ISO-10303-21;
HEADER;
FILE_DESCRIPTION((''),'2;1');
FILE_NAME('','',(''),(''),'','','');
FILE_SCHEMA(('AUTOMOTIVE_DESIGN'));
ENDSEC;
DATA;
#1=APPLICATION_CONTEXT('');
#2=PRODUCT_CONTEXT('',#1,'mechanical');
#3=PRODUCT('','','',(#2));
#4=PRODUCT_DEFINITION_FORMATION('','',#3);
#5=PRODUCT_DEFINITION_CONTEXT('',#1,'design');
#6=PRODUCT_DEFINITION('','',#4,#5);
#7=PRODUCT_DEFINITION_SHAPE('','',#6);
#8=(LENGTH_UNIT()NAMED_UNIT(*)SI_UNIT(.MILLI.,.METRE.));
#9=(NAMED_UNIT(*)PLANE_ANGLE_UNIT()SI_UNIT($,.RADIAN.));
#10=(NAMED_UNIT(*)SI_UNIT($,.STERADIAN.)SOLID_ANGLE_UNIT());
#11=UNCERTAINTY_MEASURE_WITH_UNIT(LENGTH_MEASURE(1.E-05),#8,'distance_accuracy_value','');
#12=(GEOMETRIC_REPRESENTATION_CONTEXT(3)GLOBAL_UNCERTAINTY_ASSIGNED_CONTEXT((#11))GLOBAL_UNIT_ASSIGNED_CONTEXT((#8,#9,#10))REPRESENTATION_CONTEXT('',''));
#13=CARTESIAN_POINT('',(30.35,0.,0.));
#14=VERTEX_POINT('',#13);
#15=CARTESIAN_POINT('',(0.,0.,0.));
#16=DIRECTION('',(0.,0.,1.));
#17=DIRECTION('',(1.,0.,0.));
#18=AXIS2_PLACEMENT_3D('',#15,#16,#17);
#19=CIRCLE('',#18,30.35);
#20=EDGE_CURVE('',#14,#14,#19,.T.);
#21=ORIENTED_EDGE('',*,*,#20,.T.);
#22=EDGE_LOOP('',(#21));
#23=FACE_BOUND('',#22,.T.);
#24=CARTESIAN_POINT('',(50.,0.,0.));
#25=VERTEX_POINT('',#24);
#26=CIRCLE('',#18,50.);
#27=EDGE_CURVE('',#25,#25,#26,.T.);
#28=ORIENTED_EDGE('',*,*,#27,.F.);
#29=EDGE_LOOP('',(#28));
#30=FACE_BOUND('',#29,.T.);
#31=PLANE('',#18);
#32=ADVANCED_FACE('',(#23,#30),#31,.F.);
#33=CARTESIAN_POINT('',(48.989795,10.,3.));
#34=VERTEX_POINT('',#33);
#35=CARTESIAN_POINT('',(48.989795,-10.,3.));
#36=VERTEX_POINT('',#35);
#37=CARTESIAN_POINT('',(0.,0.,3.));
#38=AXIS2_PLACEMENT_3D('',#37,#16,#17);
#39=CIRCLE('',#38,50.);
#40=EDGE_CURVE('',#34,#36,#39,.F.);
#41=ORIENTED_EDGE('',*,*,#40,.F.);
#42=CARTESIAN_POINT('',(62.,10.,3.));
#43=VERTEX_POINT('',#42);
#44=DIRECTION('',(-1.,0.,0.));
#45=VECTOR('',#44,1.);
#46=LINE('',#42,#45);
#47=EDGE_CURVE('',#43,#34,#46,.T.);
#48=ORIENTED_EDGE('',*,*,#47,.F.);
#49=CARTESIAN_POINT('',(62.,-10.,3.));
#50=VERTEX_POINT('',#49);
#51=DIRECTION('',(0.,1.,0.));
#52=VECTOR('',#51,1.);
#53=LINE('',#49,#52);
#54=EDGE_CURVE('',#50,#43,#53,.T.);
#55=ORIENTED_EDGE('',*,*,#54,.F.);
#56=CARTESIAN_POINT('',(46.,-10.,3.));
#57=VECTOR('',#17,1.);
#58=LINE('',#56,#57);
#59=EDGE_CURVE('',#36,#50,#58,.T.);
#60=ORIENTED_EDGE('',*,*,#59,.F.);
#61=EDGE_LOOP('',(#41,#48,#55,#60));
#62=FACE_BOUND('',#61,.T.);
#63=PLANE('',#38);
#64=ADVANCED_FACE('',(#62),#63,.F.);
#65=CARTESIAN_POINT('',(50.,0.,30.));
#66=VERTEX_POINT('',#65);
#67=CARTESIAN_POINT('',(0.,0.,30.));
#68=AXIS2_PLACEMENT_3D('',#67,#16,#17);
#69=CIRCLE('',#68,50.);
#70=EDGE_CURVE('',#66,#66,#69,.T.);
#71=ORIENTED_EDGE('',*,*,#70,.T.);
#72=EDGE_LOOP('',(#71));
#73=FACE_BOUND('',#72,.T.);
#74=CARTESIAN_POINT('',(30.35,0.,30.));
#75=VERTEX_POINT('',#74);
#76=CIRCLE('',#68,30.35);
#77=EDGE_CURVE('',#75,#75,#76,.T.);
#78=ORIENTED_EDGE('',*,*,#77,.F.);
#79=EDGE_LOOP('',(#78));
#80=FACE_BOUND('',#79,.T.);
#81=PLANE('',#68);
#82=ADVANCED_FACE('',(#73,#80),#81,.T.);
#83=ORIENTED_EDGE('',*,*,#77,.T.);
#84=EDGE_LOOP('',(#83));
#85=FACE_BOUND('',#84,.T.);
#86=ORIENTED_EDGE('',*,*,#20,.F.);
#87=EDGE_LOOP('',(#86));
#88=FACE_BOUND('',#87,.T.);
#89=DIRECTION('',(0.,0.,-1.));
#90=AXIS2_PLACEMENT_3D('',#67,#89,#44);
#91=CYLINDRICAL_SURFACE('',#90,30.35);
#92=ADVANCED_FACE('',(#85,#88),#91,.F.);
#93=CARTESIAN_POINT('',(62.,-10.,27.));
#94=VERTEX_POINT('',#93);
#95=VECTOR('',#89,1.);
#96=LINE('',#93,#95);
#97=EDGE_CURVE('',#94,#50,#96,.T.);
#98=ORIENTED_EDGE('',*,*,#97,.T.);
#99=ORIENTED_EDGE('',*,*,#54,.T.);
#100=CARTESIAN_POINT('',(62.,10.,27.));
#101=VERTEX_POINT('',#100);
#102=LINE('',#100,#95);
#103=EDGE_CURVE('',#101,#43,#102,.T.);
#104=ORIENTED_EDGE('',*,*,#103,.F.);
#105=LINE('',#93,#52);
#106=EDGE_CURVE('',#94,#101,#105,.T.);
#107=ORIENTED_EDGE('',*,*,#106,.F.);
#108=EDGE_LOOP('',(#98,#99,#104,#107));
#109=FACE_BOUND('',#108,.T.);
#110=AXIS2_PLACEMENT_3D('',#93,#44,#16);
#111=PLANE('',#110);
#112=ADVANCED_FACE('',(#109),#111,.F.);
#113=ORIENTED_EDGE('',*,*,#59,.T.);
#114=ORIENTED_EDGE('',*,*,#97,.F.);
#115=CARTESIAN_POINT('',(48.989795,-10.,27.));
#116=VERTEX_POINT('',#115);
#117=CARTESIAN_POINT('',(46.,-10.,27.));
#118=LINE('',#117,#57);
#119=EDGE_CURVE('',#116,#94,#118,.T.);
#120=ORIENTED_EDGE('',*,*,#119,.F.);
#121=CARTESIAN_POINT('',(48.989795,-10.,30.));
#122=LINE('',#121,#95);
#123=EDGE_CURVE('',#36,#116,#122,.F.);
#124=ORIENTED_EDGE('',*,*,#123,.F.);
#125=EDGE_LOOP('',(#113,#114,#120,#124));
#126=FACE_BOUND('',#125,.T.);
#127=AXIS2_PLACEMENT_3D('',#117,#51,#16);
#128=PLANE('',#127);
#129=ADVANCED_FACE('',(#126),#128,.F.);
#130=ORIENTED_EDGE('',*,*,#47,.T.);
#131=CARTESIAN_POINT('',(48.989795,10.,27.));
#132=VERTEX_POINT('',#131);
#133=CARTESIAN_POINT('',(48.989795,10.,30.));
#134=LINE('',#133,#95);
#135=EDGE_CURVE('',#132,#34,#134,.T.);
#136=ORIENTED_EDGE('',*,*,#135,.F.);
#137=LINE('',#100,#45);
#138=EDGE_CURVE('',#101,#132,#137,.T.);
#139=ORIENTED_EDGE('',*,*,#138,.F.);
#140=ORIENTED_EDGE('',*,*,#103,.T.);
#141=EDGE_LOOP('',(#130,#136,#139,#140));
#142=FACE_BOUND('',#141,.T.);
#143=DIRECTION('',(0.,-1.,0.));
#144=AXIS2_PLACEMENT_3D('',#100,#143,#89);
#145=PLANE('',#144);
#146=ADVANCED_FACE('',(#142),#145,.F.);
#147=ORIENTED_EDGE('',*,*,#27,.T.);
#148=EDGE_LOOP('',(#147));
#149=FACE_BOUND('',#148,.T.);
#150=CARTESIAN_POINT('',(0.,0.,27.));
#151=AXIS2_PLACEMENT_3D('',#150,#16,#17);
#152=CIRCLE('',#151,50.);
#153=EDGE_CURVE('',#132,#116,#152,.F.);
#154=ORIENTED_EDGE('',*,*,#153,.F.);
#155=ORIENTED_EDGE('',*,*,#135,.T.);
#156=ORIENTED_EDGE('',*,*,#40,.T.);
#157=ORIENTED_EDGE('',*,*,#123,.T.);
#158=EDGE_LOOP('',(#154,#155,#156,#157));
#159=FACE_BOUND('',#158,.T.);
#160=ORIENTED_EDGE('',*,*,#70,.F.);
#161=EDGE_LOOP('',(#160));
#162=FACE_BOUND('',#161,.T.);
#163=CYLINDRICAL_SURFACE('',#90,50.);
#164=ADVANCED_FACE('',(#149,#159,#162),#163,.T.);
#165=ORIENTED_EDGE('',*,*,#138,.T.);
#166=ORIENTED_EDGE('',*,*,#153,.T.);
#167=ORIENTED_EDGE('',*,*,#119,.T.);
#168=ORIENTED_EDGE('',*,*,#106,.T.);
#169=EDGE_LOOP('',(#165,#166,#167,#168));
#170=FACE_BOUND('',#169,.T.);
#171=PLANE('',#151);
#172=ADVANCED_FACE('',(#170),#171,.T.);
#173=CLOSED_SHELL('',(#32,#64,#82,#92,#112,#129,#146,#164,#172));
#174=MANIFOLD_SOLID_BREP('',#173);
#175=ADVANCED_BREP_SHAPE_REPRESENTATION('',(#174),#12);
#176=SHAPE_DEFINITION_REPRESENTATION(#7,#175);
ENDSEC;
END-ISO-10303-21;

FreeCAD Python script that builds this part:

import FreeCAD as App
import Part
import Sketcher

V = App.Vector
Q = App.Units.Quantity

doc = App.newDocument("Part")
body = doc.addObject("PartDesign::Body", "Body")

# Sketch on XY plane
sketch1 = doc.addObject("Sketcher::SketchObject", "Sketch")
body.addObject(sketch1)
sketch1.AttachmentSupport = (doc.XY_Plane, [""])
sketch1.MapMode = "FlatFace"
sketch1.addGeometry(Part.Circle(V(0, 0, 0), V(0, 0, 1), 50), False)
sketch1.addGeometry(Part.Circle(V(0, 0, 0), V(0, 0, 1), 30.35), False)
sketch1.addConstraint(Sketcher.Constraint("Coincident", 0, 3, -1, 1))
sketch1.addConstraint(Sketcher.Constraint("Coincident", 1, 3, -1, 1))
sketch1.addConstraint(Sketcher.Constraint("Diameter", 0, Q("100 mm")))
sketch1.addConstraint(Sketcher.Constraint("Diameter", 1, Q("60.7 mm")))
pad1 = doc.addObject("PartDesign::Pad", "Pad")
body.addObject(pad1)
pad1.Profile = sketch1
pad1.Length = 30
body2 = doc.addObject("PartDesign::Body", "Body001")

# Sketch on XY plane
sketch2 = doc.addObject("Sketcher::SketchObject", "Sketch001")
body2.addObject(sketch2)
sketch2.AttachmentSupport = (doc.getObject("XY_Plane001"), [""])
sketch2.MapMode = "FlatFace"
sketch2.AttachmentOffset = App.Placement(V(0, 0, 3), App.Rotation())
sketch2.addGeometry(Part.LineSegment(V(46, 10, 0), V(46, -10, 0)), False)
sketch2.addGeometry(Part.LineSegment(V(46, -10, 0), V(62, -10, 0)), False)
sketch2.addGeometry(Part.LineSegment(V(62, -10, 0), V(62, 10, 0)), False)
sketch2.addGeometry(Part.LineSegment(V(62, 10, 0), V(46, 10, 0)), False)
sketch2.addConstraint(Sketcher.Constraint("Coincident", 0, 2, 1, 1))
sketch2.addConstraint(Sketcher.Constraint("Coincident", 1, 2, 2, 1))
sketch2.addConstraint(Sketcher.Constraint("Coincident", 2, 2, 3, 1))
sketch2.addConstraint(Sketcher.Constraint("Coincident", 3, 2, 0, 1))
sketch2.addConstraint(Sketcher.Constraint("Vertical", 0))
sketch2.addConstraint(Sketcher.Constraint("Horizontal", 1))
sketch2.addConstraint(Sketcher.Constraint("Vertical", 2))
sketch2.addConstraint(Sketcher.Constraint("Horizontal", 3))
sketch2.addConstraint(Sketcher.Constraint("DistanceX", 1, 1, 1, 2, Q("16 mm")))
sketch2.addConstraint(Sketcher.Constraint("DistanceY", 0, 2, 0, 1, Q("20 mm")))
sketch2.addConstraint(Sketcher.Constraint("DistanceX", -1, 1, 0, 2, Q("46 mm")))
sketch2.addConstraint(Sketcher.Constraint("DistanceY", 0, 2, -1, 1, Q("10 mm")))
pad2 = doc.addObject("PartDesign::Pad", "Pad001")
body2.addObject(pad2)
pad2.Profile = sketch2
pad2.Length = 24
doc.recompute()

boolean = doc.addObject("PartDesign::Boolean", "Boolean")
body2.addObject(boolean)
boolean.Type = "Fuse"
boolean.addObjects([body])

doc.recompute()
